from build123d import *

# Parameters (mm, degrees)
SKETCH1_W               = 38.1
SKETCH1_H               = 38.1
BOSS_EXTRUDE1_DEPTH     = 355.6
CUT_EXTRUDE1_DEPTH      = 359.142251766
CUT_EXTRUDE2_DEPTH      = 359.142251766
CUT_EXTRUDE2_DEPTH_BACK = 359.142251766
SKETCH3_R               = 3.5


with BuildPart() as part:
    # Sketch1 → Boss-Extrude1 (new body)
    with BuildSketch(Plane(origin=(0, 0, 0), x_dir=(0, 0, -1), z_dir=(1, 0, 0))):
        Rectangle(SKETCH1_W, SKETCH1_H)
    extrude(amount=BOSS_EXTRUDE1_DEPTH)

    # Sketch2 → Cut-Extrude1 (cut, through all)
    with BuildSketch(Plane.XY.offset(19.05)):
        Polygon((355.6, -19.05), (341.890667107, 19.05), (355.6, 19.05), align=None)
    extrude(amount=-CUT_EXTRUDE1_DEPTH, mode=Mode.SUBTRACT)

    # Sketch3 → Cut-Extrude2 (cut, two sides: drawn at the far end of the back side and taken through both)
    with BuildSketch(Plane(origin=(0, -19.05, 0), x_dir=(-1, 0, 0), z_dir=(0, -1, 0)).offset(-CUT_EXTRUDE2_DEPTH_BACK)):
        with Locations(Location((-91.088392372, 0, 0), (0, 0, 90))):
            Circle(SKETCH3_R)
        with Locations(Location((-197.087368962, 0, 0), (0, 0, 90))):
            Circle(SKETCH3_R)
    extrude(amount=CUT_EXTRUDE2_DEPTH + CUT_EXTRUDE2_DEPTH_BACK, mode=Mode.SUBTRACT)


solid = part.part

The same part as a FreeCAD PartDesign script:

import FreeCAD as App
import Part
import Sketcher

V = App.Vector
Q = App.Units.Quantity


def add_polygon(sketch, points):
    """Adds a closed chain of lines whose ends are joined by coincident constraints."""
    first, n = sketch.GeometryCount, len(points)
    for a, b in zip(points, points[1:] + points[:1]):
        sketch.addGeometry(Part.LineSegment(App.Vector(*a, 0), App.Vector(*b, 0)), False)
    for i in range(n):
        sketch.addConstraint(Sketcher.Constraint("Coincident", first + i, 2, first + (i + 1) % n, 1))

doc = App.newDocument("Part")
body = doc.addObject("PartDesign::Body", "Body")

sketch1 = doc.addObject("Sketcher::SketchObject", "Sketch")
body.addObject(sketch1)
sketch1.AttachmentSupport = (doc.YZ_Plane, [""])
sketch1.MapMode = "FlatFace"
add_polygon(sketch1, [(19.05, 19.05), (-19.05, 19.05), (-19.05, -19.05), (19.05, -19.05)])
sketch1.addConstraint([
    Sketcher.Constraint("Horizontal", 0),
    Sketcher.Constraint("Vertical", 1),
    Sketcher.Constraint("Horizontal", 2),
    Sketcher.Constraint("Vertical", 3),
    Sketcher.Constraint("Symmetric", 0, 2, 2, 2, -1, 1),
    Sketcher.Constraint("Equal", 2, 1),
    Sketcher.Constraint("DistanceX", 0, 2, 0, 1, Q("1.5 in")),
])
pad1 = doc.addObject("PartDesign::Pad", "Pad")
body.addObject(pad1)
pad1.Profile = sketch1
pad1.Length = Q("14 in")

sketch2 = doc.addObject("Sketcher::SketchObject", "Sketch001")
body.addObject(sketch2)
sketch2.AttachmentSupport = (doc.XY_Plane, [""])
sketch2.MapMode = "FlatFace"
sketch2.AttachmentOffset = App.Placement(V(0, 0, 0.75 * 25.4), App.Rotation())
add_polygon(sketch2, [(341.890667, 19.05), (355.6, -19.05), (355.6, 19.05)])
sketch2.addConstraint([
    Sketcher.Constraint("Vertical", 1),
    Sketcher.Constraint("Horizontal", 2),
    Sketcher.Constraint("DistanceY", 1, 1, 1, 2, Q("1.5 in")),
    Sketcher.Constraint("DistanceX", -1, 1, 0, 2, Q("14 in")),
    Sketcher.Constraint("DistanceY", 0, 2, -1, 1, Q("0.75 in")),
    Sketcher.Constraint("Angle", 0, Q("-70.21 deg")),
])
pocket1 = doc.addObject("PartDesign::Pocket", "Pocket")
body.addObject(pocket1)
pocket1.Profile = sketch2
pocket1.Type = "ThroughAll"

sketch3 = doc.addObject("Sketcher::SketchObject", "Sketch002")
body.addObject(sketch3)
sketch3.AttachmentSupport = (doc.XZ_Plane, [""])
sketch3.MapMode = "FlatFace"
sketch3.AttachmentOffset = App.Placement(V(0, 0, 0.75 * 25.4), App.Rotation())
sketch3.addGeometry([
    Part.Circle(V(91.088392, 0, 0), V(0, 0, 1), 3.5),
    Part.Circle(V(197.087369, 0, 0), V(0, 0, 1), 3.5),
], False)
sketch3.addConstraint([
    Sketcher.Constraint("Equal", 0, 1),
    Sketcher.Constraint("PointOnObject", 0, 3, -1),
    Sketcher.Constraint("PointOnObject", 1, 3, -1),
    Sketcher.Constraint("Diameter", 0, 7.0),
    Sketcher.Constraint("DistanceX", -1, 1, 1, 3, 197.087369),
    Sketcher.Constraint("DistanceX", -1, 1, 0, 3, 91.088392),
])
pocket2 = doc.addObject("PartDesign::Pocket", "Pocket001")
body.addObject(pocket2)
pocket2.Profile = sketch3
pocket2.Type = "ThroughAll"
pocket2.Midplane = True

doc.recompute()
